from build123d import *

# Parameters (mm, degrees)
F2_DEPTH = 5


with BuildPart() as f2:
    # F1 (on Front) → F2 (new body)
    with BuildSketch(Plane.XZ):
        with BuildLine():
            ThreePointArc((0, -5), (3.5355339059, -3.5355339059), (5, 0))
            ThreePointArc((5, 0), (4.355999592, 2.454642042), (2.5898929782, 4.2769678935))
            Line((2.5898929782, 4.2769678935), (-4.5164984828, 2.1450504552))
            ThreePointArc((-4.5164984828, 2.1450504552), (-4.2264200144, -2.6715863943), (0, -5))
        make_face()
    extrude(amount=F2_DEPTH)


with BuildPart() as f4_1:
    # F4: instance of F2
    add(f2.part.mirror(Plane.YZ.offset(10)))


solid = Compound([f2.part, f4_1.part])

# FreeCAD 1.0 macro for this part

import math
import FreeCAD as App
import Part
import Sketcher
Q = App.Units.Quantity

doc = App.newDocument("Part")
body = doc.addObject("PartDesign::Body", "Body")

# Sketch on XZ plane
sketch1 = body.newObject("Sketcher::SketchObject", "Sketch")
sketch1.AttachmentSupport = (doc.getObject("XZ_Plane"), [""])
sketch1.MapMode = "FlatFace"
sketch1.addGeometry(Part.ArcOfCircle(Part.Circle(App.Vector(0, 0, 0), App.Vector(0, 0, 1), 5), math.radians(-90), math.radians(0)), False)
sketch1.addGeometry(Part.ArcOfCircle(Part.Circle(App.Vector(0, 0, 0), App.Vector(0, 0, 1), 5), math.radians(0), math.radians(59)), False)
sketch1.addGeometry(Part.LineSegment(App.Vector(2.6, 4.3, 0), App.Vector(-4.5, 2.1, 0)), False)
sketch1.addGeometry(Part.ArcOfCircle(Part.Circle(App.Vector(0, 0, 0), App.Vector(0, 0, 1), 5), math.radians(155), math.radians(270)), False)
sketch1.addConstraint(Sketcher.Constraint("Tangent", 0, 2, 1, 1))
sketch1.addConstraint(Sketcher.Constraint("Coincident", 1, 2, 2, 1))
sketch1.addConstraint(Sketcher.Constraint("Coincident", 2, 2, 3, 1))
sketch1.addConstraint(Sketcher.Constraint("Tangent", 3, 2, 0, 1))
sketch1.addConstraint(Sketcher.Constraint("Coincident", 0, 3, -1, 1))
sketch1.addConstraint(Sketcher.Constraint("Equal", 0, 1))
sketch1.addConstraint(Sketcher.Constraint("Equal", 1, 3))
sketch1.addConstraint(Sketcher.Constraint("PointOnObject", 0, 2, -1))
sketch1.addConstraint(Sketcher.Constraint("PointOnObject", 3, 2, -2))
sketch1.addConstraint(Sketcher.Constraint("Radius", 0, Q("5 mm")))
sketch1.addConstraint(Sketcher.Constraint("DistanceX", 2, 2, -1, 1, Q("4.516498 mm")))
sketch1.addConstraint(Sketcher.Constraint("Distance", 2, Q("7.419291 mm")))
pad1 = body.newObject("PartDesign::Pad", "Pad")
pad1.Profile = sketch1
pad1.Length = 5
body2 = doc.addObject("PartDesign::Body", "Body001")
doc.recompute()

mirroring = doc.addObject("Part::Mirroring", "Mirroring")
mirroring.Source = body
mirroring.Base = App.Vector(10, 0, 0)
mirroring.Normal = App.Vector(1, 0, 0)
body2.BaseFeature = mirroring
doc.recompute()
mirroring.Visibility = False

doc.recompute()
